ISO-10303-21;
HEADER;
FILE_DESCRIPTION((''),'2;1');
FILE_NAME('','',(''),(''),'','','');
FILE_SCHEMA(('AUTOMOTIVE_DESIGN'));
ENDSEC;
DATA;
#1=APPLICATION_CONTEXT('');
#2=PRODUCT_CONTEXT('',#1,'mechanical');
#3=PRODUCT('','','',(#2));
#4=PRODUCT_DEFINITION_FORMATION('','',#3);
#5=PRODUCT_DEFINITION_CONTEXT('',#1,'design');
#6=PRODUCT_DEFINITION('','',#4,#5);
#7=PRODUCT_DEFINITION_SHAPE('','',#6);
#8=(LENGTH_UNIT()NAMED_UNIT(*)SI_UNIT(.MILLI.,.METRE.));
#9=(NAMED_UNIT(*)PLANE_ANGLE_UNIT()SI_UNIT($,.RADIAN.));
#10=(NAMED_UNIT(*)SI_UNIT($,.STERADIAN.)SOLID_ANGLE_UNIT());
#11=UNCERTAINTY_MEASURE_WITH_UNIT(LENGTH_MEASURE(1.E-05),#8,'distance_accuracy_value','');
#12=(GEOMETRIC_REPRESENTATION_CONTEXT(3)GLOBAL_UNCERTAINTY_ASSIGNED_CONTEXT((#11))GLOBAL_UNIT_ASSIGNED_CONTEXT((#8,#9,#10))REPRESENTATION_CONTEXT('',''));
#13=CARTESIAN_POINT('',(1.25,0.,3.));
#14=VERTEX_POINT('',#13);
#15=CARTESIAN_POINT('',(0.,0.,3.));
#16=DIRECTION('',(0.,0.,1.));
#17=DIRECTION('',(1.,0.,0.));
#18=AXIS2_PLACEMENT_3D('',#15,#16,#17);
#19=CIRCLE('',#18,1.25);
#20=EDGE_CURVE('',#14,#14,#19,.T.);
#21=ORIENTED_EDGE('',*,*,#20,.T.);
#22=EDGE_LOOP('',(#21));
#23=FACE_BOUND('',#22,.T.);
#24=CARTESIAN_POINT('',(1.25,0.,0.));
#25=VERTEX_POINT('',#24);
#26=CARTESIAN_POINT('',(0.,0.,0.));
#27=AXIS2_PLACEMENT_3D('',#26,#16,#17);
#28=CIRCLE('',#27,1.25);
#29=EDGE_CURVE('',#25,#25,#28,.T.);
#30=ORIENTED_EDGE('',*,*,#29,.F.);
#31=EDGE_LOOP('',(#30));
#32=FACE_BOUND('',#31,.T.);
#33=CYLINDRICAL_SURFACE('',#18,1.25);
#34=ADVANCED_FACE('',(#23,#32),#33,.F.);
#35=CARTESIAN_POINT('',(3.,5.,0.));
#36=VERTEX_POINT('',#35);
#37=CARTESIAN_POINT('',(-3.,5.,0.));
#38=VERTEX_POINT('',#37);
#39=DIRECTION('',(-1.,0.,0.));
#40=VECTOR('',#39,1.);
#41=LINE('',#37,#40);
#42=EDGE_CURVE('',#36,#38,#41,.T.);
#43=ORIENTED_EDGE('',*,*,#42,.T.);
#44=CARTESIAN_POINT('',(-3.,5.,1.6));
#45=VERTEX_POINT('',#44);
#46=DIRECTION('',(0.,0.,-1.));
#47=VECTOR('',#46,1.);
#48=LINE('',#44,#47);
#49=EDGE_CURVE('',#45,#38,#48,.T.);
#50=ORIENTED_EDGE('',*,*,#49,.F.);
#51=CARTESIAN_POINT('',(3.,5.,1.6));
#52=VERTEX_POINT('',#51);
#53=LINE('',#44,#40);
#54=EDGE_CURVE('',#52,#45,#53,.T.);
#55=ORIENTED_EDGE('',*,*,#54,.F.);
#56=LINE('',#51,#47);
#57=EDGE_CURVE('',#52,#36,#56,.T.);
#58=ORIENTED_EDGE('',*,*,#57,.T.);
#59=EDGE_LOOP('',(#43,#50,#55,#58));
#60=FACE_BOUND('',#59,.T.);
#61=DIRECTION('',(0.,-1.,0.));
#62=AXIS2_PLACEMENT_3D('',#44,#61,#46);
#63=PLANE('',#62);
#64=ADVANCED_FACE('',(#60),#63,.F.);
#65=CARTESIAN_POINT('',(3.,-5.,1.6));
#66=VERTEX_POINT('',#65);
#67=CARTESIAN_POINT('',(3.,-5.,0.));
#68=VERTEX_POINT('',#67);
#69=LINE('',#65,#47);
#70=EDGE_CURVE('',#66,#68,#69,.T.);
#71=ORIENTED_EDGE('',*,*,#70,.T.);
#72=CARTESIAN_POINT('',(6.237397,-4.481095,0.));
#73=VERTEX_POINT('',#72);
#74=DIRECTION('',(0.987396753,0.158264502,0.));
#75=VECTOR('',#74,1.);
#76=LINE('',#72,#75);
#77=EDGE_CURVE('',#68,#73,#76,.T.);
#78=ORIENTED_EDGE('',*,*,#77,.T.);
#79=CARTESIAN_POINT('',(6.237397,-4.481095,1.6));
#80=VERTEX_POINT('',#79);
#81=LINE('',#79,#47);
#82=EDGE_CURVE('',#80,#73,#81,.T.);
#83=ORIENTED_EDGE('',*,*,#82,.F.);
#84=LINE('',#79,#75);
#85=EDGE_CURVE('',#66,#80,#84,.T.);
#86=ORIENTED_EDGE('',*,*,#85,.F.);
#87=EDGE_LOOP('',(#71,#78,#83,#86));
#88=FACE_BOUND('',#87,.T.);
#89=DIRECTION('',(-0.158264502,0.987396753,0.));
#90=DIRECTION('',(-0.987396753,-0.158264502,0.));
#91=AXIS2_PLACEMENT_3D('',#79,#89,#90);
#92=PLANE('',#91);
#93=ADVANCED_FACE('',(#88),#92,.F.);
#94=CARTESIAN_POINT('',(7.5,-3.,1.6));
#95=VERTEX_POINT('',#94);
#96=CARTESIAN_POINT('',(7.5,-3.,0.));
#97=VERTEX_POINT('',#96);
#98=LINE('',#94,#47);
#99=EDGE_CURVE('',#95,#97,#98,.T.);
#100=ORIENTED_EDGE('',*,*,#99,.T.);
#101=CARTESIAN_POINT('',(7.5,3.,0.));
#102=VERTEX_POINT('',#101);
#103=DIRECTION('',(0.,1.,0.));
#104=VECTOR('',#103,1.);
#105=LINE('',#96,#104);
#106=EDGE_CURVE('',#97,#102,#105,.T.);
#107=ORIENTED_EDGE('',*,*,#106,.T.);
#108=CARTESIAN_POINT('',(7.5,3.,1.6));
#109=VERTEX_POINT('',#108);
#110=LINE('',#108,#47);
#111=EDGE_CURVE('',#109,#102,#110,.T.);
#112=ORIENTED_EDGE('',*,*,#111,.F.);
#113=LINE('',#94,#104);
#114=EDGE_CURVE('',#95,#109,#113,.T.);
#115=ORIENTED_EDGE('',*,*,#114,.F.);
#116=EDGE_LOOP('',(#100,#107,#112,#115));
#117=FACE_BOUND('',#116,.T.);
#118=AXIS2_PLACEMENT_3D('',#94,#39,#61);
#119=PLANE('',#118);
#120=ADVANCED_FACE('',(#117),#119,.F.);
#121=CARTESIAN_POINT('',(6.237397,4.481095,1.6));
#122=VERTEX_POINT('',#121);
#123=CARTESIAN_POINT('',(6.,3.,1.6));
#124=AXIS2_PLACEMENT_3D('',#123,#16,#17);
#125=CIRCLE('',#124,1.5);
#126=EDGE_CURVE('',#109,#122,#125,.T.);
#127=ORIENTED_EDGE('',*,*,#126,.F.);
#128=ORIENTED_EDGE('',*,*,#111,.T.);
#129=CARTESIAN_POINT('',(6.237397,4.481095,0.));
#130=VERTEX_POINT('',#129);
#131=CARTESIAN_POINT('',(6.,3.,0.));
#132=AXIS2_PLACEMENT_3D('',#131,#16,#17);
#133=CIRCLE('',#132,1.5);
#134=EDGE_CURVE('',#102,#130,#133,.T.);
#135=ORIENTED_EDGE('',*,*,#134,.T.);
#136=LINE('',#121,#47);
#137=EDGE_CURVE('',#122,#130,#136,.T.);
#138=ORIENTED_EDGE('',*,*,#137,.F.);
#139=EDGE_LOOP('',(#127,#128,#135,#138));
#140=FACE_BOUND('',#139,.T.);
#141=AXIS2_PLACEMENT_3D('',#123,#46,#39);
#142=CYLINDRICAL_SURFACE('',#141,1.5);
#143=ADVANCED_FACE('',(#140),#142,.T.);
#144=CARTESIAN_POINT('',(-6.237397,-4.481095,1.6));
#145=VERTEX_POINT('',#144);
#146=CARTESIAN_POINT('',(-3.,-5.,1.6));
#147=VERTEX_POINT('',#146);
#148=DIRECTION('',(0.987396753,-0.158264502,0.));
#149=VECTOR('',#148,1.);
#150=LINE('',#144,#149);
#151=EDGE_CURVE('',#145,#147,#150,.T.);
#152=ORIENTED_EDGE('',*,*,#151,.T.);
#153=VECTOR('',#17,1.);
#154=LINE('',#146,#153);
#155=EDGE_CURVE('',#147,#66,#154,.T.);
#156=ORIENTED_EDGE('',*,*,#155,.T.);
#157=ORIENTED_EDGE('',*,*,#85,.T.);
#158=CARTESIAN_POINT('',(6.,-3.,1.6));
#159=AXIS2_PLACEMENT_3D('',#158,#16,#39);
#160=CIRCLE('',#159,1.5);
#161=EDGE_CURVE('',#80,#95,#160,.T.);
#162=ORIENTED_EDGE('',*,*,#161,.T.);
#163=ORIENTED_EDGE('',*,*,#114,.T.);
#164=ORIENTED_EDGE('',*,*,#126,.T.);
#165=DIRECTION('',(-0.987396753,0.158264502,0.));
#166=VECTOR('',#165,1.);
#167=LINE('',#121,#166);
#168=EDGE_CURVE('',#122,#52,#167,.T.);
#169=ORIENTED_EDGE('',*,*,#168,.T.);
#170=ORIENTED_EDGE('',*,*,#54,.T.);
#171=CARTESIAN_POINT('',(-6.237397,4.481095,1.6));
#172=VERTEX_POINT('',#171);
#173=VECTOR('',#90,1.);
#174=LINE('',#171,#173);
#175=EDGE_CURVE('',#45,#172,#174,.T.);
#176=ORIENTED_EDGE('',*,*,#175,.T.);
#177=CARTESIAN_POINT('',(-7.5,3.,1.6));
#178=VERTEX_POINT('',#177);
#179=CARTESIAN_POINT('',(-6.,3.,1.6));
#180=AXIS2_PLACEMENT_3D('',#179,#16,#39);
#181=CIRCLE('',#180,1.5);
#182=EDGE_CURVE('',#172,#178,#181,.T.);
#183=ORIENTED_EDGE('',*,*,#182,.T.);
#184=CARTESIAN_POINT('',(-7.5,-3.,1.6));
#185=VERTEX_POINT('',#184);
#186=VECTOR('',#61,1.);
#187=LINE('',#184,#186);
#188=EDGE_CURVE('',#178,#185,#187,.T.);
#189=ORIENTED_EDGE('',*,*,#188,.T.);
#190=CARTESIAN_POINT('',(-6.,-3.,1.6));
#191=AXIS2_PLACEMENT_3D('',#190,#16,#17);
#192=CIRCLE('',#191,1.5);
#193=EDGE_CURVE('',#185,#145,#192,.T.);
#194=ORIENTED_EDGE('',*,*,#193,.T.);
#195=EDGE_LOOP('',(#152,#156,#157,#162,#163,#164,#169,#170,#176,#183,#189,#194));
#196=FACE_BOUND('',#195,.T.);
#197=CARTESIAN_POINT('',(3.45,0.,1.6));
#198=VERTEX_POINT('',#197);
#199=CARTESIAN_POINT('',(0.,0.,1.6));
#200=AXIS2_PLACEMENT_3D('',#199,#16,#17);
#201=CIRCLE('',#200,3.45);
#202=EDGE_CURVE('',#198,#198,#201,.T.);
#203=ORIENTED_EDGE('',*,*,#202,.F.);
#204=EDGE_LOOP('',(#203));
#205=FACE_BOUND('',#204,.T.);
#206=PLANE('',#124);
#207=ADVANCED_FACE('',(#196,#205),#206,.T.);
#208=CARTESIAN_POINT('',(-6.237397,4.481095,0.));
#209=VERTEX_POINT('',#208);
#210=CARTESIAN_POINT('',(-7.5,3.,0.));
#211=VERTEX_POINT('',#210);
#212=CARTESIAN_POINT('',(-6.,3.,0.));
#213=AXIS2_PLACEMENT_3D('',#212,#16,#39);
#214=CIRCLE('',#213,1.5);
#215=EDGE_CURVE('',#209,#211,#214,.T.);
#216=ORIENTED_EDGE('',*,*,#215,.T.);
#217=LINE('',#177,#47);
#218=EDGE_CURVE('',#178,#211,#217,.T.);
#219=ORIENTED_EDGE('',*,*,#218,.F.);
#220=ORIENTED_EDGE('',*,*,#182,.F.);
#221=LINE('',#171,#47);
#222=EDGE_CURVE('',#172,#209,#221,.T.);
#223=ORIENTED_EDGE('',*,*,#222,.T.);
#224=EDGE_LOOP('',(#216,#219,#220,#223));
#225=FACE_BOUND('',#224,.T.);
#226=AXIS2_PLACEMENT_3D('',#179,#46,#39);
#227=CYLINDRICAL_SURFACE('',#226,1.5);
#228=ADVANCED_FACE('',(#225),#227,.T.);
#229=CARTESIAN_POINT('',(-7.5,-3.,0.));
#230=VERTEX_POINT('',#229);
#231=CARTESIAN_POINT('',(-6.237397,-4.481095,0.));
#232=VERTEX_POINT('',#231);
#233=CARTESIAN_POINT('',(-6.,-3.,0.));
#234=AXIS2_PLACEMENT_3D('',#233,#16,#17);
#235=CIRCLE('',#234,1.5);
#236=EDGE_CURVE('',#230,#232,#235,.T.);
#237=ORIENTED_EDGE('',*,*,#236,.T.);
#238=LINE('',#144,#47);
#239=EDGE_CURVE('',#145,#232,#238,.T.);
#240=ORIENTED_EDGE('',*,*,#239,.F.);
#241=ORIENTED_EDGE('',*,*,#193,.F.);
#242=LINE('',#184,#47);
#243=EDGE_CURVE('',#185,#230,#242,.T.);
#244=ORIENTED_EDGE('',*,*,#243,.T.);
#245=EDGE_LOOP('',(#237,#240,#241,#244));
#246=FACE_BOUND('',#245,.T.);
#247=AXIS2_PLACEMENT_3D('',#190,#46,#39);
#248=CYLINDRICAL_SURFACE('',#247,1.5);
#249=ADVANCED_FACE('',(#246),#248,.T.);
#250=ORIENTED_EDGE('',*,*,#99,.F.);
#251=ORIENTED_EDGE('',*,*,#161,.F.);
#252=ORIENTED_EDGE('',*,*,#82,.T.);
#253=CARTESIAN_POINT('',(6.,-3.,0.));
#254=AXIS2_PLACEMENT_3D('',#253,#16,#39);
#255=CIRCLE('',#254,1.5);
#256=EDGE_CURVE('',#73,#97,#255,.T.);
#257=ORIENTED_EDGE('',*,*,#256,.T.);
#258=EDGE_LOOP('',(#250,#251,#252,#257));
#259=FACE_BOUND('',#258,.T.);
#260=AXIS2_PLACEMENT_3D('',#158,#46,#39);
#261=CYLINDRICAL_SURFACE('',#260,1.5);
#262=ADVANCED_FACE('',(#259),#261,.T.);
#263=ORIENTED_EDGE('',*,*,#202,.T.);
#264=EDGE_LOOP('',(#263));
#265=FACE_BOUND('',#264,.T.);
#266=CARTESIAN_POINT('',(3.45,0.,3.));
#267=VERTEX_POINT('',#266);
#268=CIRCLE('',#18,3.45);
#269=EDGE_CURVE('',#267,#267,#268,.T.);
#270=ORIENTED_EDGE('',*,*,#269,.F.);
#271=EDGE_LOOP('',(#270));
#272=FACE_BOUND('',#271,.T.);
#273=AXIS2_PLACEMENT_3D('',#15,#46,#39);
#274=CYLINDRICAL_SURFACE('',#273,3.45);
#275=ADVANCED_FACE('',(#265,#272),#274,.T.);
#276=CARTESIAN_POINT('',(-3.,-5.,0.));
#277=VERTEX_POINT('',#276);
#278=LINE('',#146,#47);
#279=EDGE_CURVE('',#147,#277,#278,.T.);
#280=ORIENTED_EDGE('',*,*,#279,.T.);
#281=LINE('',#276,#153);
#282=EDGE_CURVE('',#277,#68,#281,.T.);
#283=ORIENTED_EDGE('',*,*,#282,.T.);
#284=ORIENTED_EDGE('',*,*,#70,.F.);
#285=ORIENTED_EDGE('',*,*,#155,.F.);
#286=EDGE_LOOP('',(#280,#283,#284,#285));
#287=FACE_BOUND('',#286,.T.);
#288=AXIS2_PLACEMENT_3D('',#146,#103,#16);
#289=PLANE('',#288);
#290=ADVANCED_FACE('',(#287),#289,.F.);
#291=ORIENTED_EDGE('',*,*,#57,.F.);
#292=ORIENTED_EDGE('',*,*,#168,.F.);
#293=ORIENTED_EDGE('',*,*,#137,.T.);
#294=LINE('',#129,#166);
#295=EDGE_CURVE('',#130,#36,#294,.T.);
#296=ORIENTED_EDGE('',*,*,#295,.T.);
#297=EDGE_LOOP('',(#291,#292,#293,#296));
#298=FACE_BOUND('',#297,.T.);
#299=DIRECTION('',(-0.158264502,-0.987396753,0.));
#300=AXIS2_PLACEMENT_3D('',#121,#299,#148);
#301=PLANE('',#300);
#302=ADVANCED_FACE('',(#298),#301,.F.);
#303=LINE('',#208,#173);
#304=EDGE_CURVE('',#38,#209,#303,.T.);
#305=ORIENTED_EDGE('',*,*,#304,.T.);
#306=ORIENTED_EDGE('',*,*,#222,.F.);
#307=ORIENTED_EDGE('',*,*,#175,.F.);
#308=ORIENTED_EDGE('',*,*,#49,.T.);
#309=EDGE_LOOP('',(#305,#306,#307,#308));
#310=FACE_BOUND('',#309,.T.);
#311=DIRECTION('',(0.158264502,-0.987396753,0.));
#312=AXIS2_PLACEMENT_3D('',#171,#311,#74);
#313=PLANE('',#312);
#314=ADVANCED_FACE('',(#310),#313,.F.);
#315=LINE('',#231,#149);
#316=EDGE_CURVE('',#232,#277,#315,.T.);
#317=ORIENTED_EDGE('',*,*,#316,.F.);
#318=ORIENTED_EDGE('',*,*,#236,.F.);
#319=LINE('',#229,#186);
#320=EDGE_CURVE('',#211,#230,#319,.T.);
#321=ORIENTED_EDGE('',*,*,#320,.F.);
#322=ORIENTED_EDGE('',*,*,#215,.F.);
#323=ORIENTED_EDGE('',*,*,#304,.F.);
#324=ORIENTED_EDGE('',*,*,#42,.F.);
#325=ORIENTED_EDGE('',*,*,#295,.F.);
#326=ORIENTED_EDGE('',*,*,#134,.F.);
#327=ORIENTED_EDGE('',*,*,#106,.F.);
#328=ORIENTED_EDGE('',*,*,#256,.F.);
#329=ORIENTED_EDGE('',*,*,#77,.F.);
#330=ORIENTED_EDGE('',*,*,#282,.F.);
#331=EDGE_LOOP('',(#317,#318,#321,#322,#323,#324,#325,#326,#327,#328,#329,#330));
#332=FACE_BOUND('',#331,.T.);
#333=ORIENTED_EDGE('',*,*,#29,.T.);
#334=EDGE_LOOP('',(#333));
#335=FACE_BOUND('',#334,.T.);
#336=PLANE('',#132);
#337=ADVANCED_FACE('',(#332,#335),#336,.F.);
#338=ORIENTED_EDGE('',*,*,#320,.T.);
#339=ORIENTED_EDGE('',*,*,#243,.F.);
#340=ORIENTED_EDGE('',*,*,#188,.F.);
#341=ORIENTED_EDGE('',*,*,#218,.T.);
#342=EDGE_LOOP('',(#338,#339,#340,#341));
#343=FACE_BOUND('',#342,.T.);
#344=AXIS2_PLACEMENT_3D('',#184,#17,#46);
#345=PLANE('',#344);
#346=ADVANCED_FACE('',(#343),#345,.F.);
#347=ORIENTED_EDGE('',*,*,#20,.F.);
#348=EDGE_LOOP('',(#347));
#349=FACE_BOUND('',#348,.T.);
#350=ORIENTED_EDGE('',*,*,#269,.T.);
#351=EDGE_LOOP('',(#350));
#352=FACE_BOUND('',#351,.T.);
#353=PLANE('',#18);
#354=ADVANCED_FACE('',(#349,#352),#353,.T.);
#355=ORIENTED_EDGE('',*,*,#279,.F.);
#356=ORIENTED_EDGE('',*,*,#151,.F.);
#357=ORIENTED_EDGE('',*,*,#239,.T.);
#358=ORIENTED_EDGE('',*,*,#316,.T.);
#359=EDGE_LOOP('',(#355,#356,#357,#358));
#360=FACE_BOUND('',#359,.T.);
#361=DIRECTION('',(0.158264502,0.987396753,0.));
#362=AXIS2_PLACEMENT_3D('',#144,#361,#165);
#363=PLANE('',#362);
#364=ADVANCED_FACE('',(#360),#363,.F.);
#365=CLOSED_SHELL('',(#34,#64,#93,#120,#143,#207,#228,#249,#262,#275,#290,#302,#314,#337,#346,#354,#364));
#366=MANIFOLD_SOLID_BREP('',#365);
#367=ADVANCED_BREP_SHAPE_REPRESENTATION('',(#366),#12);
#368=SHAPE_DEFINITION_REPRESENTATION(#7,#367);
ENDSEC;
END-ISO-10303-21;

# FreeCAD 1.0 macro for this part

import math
import FreeCAD as App
import Part
import Sketcher
from FreeCAD import Vector

doc = App.newDocument("Part")
body = doc.addObject("PartDesign::Body", "Body")

sketch1 = body.newObject("Sketcher::SketchObject", "Sketch")
sketch1.AttachmentSupport = (doc.getObject("XY_Plane"), [""])
sketch1.MapMode = "FlatFace"
sketch1.addGeometry(Part.LineSegment(Vector(-3, 5, 0), Vector(-6.2, 4.5, 0)), False)
sketch1.addGeometry(Part.ArcOfCircle(Part.Circle(Vector(-6, 3, 0), Vector(0, 0, 1), 1.5), math.radians(99), math.radians(180)), False)
sketch1.addGeometry(Part.LineSegment(Vector(-7.5, 3, 0), Vector(-7.5, -3, 0)), False)
sketch1.addGeometry(Part.ArcOfCircle(Part.Circle(Vector(-6, -3, 0), Vector(0, 0, 1), 1.5), math.radians(180), math.radians(261)), False)
sketch1.addGeometry(Part.LineSegment(Vector(-6.2, -4.5, 0), Vector(-3, -5, 0)), False)
sketch1.addGeometry(Part.LineSegment(Vector(-3, -5, 0), Vector(3, -5, 0)), False)
sketch1.addGeometry(Part.LineSegment(Vector(3, -5, 0), Vector(6.2, -4.5, 0)), False)
sketch1.addGeometry(Part.ArcOfCircle(Part.Circle(Vector(6, -3, 0), Vector(0, 0, 1), 1.5), math.radians(-81), math.radians(0)), False)
sketch1.addGeometry(Part.LineSegment(Vector(7.5, -3, 0), Vector(7.5, 3, 0)), False)
sketch1.addGeometry(Part.ArcOfCircle(Part.Circle(Vector(6, 3, 0), Vector(0, 0, 1), 1.5), math.radians(0), math.radians(81)), False)
sketch1.addGeometry(Part.LineSegment(Vector(6.2, 4.5, 0), Vector(3, 5, 0)), False)
sketch1.addGeometry(Part.LineSegment(Vector(3, 5, 0), Vector(-3, 5, 0)), False)
sketch1.addConstraint(Sketcher.Constraint("Tangent", 0, 2, 1, 1))
sketch1.addConstraint(Sketcher.Constraint("Tangent", 1, 2, 2, 1))
sketch1.addConstraint(Sketcher.Constraint("Tangent", 2, 2, 3, 1))
sketch1.addConstraint(Sketcher.Constraint("Tangent", 3, 2, 4, 1))
sketch1.addConstraint(Sketcher.Constraint("Coincident", 4, 2, 5, 1))
sketch1.addConstraint(Sketcher.Constraint("Coincident", 5, 2, 6, 1))
sketch1.addConstraint(Sketcher.Constraint("Tangent", 6, 2, 7, 1))
sketch1.addConstraint(Sketcher.Constraint("Tangent", 7, 2, 8, 1))
sketch1.addConstraint(Sketcher.Constraint("Tangent", 8, 2, 9, 1))
sketch1.addConstraint(Sketcher.Constraint("Tangent", 9, 2, 10, 1))
sketch1.addConstraint(Sketcher.Constraint("Coincident", 10, 2, 11, 1))
sketch1.addConstraint(Sketcher.Constraint("Coincident", 11, 2, 0, 1))
sketch1.addConstraint(Sketcher.Constraint("Vertical", 2))
sketch1.addConstraint(Sketcher.Constraint("Horizontal", 5))
sketch1.addConstraint(Sketcher.Constraint("Vertical", 8))
sketch1.addConstraint(Sketcher.Constraint("Horizontal", 11))
sketch1.addConstraint(Sketcher.Constraint("Equal", 1, 3))
sketch1.addConstraint(Sketcher.Constraint("Equal", 3, 7))
sketch1.addConstraint(Sketcher.Constraint("Equal", 7, 9))
sketch1.addConstraint(Sketcher.Constraint("Symmetric", 1, 3, 7, 3, -1, 1))
sketch1.addConstraint(Sketcher.Constraint("Symmetric", 3, 2, 9, 2, -1, 1))
sketch1.addConstraint(Sketcher.Constraint("Symmetric", 5, 2, 11, 2, -1, 1))
sketch1.addConstraint(Sketcher.Constraint("Symmetric", 3, 2, 6, 2, -2))
sketch1.addConstraint(Sketcher.Constraint("Equal", 11, 2))
sketch1.addConstraint(Sketcher.Constraint("Radius", 1, 1.5))
sketch1.addConstraint(Sketcher.Constraint("DistanceX", 5, 1, 5, 2, 6.0))
sketch1.addConstraint(Sketcher.Constraint("DistanceX", 1, 3, -1, 1, 6.0))
sketch1.addConstraint(Sketcher.Constraint("DistanceY", 4, 2, -1, 1, 5.0))
pad1 = body.newObject("PartDesign::Pad", "Pad")
pad1.Profile = sketch1
pad1.Length = 1.6

sketch2 = body.newObject("Sketcher::SketchObject", "Sketch001")
sketch2.AttachmentSupport = (doc.getObject("XY_Plane"), [""])
sketch2.MapMode = "FlatFace"
sketch2.AttachmentOffset = App.Placement(Vector(0, 0, 1.6), App.Rotation())
sketch2.addGeometry(Part.Circle(Vector(0, 0, 0), Vector(0, 0, 1), 3.5), False)
sketch2.addConstraint(Sketcher.Constraint("Coincident", 0, 3, -1, 1))
sketch2.addConstraint(Sketcher.Constraint("Diameter", 0, 6.9))
pad2 = body.newObject("PartDesign::Pad", "Pad001")
pad2.Profile = sketch2
pad2.Length = 1.4

sketch3 = body.newObject("Sketcher::SketchObject", "Sketch002")
sketch3.AttachmentSupport = (doc.getObject("XY_Plane"), [""])
sketch3.MapMode = "FlatFace"
sketch3.AttachmentOffset = App.Placement(Vector(0, 0, 3), App.Rotation())
sketch3.addGeometry(Part.Circle(Vector(0, 0, 0), Vector(0, 0, 1), 1.2), False)
sketch3.addConstraint(Sketcher.Constraint("Coincident", 0, 3, -1, 1))
sketch3.addConstraint(Sketcher.Constraint("Diameter", 0, 2.5))
doc.recompute()
hole = body.newObject("PartDesign::Hole", "Hole")
hole.Profile = sketch3
hole.ThreadType = "None"
hole.Diameter = 2.5
hole.DepthType = "ThroughAll"

doc.recompute()
